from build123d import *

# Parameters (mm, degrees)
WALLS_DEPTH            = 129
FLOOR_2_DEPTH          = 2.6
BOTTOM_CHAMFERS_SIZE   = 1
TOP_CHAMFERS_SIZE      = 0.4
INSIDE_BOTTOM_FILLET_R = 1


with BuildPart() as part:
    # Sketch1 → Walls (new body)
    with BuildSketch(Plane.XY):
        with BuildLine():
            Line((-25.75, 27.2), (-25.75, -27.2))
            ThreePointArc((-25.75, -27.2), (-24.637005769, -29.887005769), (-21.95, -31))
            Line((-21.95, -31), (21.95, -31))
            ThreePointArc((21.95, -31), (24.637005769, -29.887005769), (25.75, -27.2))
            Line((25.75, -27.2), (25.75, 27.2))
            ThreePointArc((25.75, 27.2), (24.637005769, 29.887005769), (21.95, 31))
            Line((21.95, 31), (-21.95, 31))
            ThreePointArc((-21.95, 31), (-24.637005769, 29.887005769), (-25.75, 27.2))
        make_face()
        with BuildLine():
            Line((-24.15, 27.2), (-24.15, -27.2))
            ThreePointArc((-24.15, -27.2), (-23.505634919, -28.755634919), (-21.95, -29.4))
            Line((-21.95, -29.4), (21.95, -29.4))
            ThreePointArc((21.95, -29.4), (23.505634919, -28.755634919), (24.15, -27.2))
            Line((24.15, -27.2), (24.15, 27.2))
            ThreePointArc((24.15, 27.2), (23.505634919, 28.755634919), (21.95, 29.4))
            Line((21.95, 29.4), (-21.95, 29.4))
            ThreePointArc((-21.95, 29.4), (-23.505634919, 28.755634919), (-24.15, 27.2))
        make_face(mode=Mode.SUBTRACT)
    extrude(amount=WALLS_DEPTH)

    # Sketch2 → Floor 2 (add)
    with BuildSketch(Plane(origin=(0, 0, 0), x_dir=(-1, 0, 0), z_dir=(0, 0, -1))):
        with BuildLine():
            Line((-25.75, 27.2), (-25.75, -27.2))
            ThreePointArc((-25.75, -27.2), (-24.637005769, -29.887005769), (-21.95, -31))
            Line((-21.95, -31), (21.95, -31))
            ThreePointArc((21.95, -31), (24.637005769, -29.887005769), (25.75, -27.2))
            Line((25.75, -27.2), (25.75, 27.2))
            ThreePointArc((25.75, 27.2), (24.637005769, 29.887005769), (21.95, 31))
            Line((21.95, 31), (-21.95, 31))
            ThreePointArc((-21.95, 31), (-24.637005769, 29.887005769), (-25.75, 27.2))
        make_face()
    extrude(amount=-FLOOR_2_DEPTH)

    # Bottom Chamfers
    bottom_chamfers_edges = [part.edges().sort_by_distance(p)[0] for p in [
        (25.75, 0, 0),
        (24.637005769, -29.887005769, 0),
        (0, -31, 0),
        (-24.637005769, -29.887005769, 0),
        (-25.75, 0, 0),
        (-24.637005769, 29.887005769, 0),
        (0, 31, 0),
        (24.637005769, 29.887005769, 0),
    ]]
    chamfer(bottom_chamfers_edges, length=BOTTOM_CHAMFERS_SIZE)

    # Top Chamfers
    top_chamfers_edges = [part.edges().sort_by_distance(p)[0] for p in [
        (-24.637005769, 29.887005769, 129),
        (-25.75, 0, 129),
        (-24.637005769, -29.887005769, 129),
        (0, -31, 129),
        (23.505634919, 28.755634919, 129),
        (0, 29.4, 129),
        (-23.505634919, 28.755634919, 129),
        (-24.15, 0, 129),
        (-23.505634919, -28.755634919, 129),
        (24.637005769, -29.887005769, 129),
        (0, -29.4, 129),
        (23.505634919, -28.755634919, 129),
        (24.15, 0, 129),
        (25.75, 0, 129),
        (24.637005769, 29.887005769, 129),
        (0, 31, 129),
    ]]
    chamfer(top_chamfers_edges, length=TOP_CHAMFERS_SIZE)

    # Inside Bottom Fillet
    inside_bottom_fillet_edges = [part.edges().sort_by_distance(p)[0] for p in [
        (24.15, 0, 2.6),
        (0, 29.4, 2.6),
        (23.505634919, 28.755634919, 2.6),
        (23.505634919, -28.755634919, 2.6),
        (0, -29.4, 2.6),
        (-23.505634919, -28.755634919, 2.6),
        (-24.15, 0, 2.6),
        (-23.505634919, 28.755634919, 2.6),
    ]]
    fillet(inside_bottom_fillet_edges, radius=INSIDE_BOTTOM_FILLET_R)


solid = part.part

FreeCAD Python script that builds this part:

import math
import FreeCAD as App
import Part
import Sketcher

V = App.Vector
Q = App.Units.Quantity


def edges_at(feature, points):
    """Names of the edges that pass closest to the given points."""
    edges = feature.Shape.Edges
    near = lambda p: min(range(len(edges)), key=lambda i: edges[i].distToShape(Part.Vertex(*p))[0])
    return sorted({f"Edge{near(p) + 1}" for p in points})

doc = App.newDocument("Part")
params = doc.addObject("Spreadsheet::Sheet", "Params")
for row, (alias, value) in enumerate([
    ("sketch1_radius", "3.8 mm"),
    ("sketch1_radius2", "2.2 mm"),
    ("sketch1_width", "43.9 mm"),
    ("sketch1_height", "54.4 mm"),
    ("pad1_length", "129 mm"),
    ("sketch2_radius", "3.8 mm"),
    ("sketch2_width", "43.9 mm"),
    ("sketch2_height", "54.4 mm"),
    ("pad2_length", "2.6 mm"),
    ("chamfer_size", "1 mm"),
    ("chamfer2_size", "0.4 mm"),
    ("fillet_radius", "1 mm"),
], start=1):
    params.set(f"A{row}", alias)
    params.set(f"B{row}", "=" + value)
    params.setAlias(f"B{row}", alias)

body = doc.addObject("PartDesign::Body", "Body")

sketch1 = body.newObject("Sketcher::SketchObject", "Sketch")
sketch1.AttachmentSupport = (doc.getObject("XY_Plane"), [""])
sketch1.MapMode = "FlatFace"
sketch1.addGeometry(Part.LineSegment(V(-25.8, 27.2, 0), V(-25.8, -27.2, 0)), False)
sketch1.addGeometry(Part.ArcOfCircle(Part.Circle(V(-22, -27.2, 0), V(0, 0, 1), 3.8), math.radians(180), math.radians(270)), False)
sketch1.addGeometry(Part.LineSegment(V(-21.9, -31, 0), V(21.9, -31, 0)), False)
sketch1.addGeometry(Part.ArcOfCircle(Part.Circle(V(22, -27.2, 0), V(0, 0, 1), 3.8), math.radians(-90), math.radians(0)), False)
sketch1.addGeometry(Part.LineSegment(V(25.8, -27.2, 0), V(25.8, 27.2, 0)), False)
sketch1.addGeometry(Part.ArcOfCircle(Part.Circle(V(22, 27.2, 0), V(0, 0, 1), 3.8), math.radians(0), math.radians(90)), False)
sketch1.addGeometry(Part.LineSegment(V(21.9, 31, 0), V(-21.9, 31, 0)), False)
sketch1.addGeometry(Part.ArcOfCircle(Part.Circle(V(-22, 27.2, 0), V(0, 0, 1), 3.8), math.radians(90), math.radians(180)), False)
sketch1.addGeometry(Part.LineSegment(V(-24.1, -27.2, 0), V(-24.1, 27.2, 0)), False)
sketch1.addGeometry(Part.ArcOfCircle(Part.Circle(V(-22, 27.2, 0), V(0, 0, 1), 2.2), math.radians(90), math.radians(180)), False)
sketch1.addGeometry(Part.LineSegment(V(-21.9, 29.4, 0), V(21.9, 29.4, 0)), False)
sketch1.addGeometry(Part.ArcOfCircle(Part.Circle(V(22, 27.2, 0), V(0, 0, 1), 2.2), math.radians(0), math.radians(90)), False)
sketch1.addGeometry(Part.LineSegment(V(24.1, 27.2, 0), V(24.1, -27.2, 0)), False)
sketch1.addGeometry(Part.ArcOfCircle(Part.Circle(V(22, -27.2, 0), V(0, 0, 1), 2.2), math.radians(-90), math.radians(0)), False)
sketch1.addGeometry(Part.LineSegment(V(21.9, -29.4, 0), V(-21.9, -29.4, 0)), False)
sketch1.addGeometry(Part.ArcOfCircle(Part.Circle(V(-22, -27.2, 0), V(0, 0, 1), 2.2), math.radians(180), math.radians(270)), False)
sketch1.addConstraint(Sketcher.Constraint("Tangent", 0, 2, 1, 1))
sketch1.addConstraint(Sketcher.Constraint("Tangent", 1, 2, 2, 1))
sketch1.addConstraint(Sketcher.Constraint("Tangent", 2, 2, 3, 1))
sketch1.addConstraint(Sketcher.Constraint("Tangent", 3, 2, 4, 1))
sketch1.addConstraint(Sketcher.Constraint("Tangent", 4, 2, 5, 1))
sketch1.addConstraint(Sketcher.Constraint("Tangent", 5, 2, 6, 1))
sketch1.addConstraint(Sketcher.Constraint("Tangent", 6, 2, 7, 1))
sketch1.addConstraint(Sketcher.Constraint("Tangent", 7, 2, 0, 1))
sketch1.addConstraint(Sketcher.Constraint("Tangent", 8, 2, 9, 2))
sketch1.addConstraint(Sketcher.Constraint("Tangent", 9, 1, 10, 1))
sketch1.addConstraint(Sketcher.Constraint("Tangent", 10, 2, 11, 2))
sketch1.addConstraint(Sketcher.Constraint("Tangent", 11, 1, 12, 1))
sketch1.addConstraint(Sketcher.Constraint("Tangent", 12, 2, 13, 2))
sketch1.addConstraint(Sketcher.Constraint("Tangent", 13, 1, 14, 1))
sketch1.addConstraint(Sketcher.Constraint("Tangent", 14, 2, 15, 2))
sketch1.addConstraint(Sketcher.Constraint("Tangent", 15, 1, 8, 1))
sketch1.addConstraint(Sketcher.Constraint("Vertical", 0))
sketch1.addConstraint(Sketcher.Constraint("Horizontal", 2))
sketch1.addConstraint(Sketcher.Constraint("Vertical", 4))
sketch1.addConstraint(Sketcher.Constraint("Horizontal", 6))
sketch1.addConstraint(Sketcher.Constraint("Vertical", 8))
sketch1.addConstraint(Sketcher.Constraint("Horizontal", 10))
sketch1.addConstraint(Sketcher.Constraint("Vertical", 12))
sketch1.addConstraint(Sketcher.Constraint("Horizontal", 14))
sketch1.addConstraint(Sketcher.Constraint("Coincident", 9, 3, 7, 3))
sketch1.addConstraint(Sketcher.Constraint("Coincident", 11, 3, 5, 3))
sketch1.addConstraint(Sketcher.Constraint("Coincident", 13, 3, 3, 3))
sketch1.addConstraint(Sketcher.Constraint("Equal", 1, 3))
sketch1.addConstraint(Sketcher.Constraint("Equal", 3, 5))
sketch1.addConstraint(Sketcher.Constraint("Equal", 5, 7))
sketch1.addConstraint(Sketcher.Constraint("Equal", 13, 15))
sketch1.addConstraint(Sketcher.Constraint("Symmetric", 1, 3, 5, 3, -1, 1))
sketch1.addConstraint(Sketcher.Constraint("Radius", 1, Q("3.8 mm")))
sketch1.addConstraint(Sketcher.Constraint("Radius", 9, Q("2.2 mm")))
sketch1.addConstraint(Sketcher.Constraint("DistanceX", 2, 1, 2, 2, Q("43.9 mm")))
sketch1.addConstraint(Sketcher.Constraint("DistanceY", 0, 2, 0, 1, Q("54.4 mm")))
sketch1.setExpression("Constraints[32]", "Params.sketch1_radius")
sketch1.setExpression("Constraints[33]", "Params.sketch1_radius2")
sketch1.setExpression("Constraints[34]", "Params.sketch1_width")
sketch1.setExpression("Constraints[35]", "Params.sketch1_height")
pad1 = body.newObject("PartDesign::Pad", "Pad")
pad1.Profile = sketch1
pad1.setExpression("Length", "Params.pad1_length")

sketch2 = body.newObject("Sketcher::SketchObject", "Sketch001")
sketch2.AttachmentSupport = (doc.getObject("XY_Plane"), [""])
sketch2.MapMode = "FlatFace"
sketch2.addGeometry(Part.LineSegment(V(25.8, 27.2, 0), V(25.8, -27.2, 0)), False)
sketch2.addGeometry(Part.ArcOfCircle(Part.Circle(V(22, -27.2, 0), V(0, 0, 1), 3.8), math.radians(-90), math.radians(0)), False)
sketch2.addGeometry(Part.LineSegment(V(21.9, -31, 0), V(-21.9, -31, 0)), False)
sketch2.addGeometry(Part.ArcOfCircle(Part.Circle(V(-22, -27.2, 0), V(0, 0, 1), 3.8), math.radians(180), math.radians(270)), False)
sketch2.addGeometry(Part.LineSegment(V(-25.8, -27.2, 0), V(-25.8, 27.2, 0)), False)
sketch2.addGeometry(Part.ArcOfCircle(Part.Circle(V(-22, 27.2, 0), V(0, 0, 1), 3.8), math.radians(90), math.radians(180)), False)
sketch2.addGeometry(Part.LineSegment(V(-21.9, 31, 0), V(21.9, 31, 0)), False)
sketch2.addGeometry(Part.ArcOfCircle(Part.Circle(V(22, 27.2, 0), V(0, 0, 1), 3.8), math.radians(0), math.radians(90)), False)
sketch2.addConstraint(Sketcher.Constraint("Tangent", 0, 2, 1, 2))
sketch2.addConstraint(Sketcher.Constraint("Tangent", 1, 1, 2, 1))
sketch2.addConstraint(Sketcher.Constraint("Tangent", 2, 2, 3, 2))
sketch2.addConstraint(Sketcher.Constraint("Tangent", 3, 1, 4, 1))
sketch2.addConstraint(Sketcher.Constraint("Tangent", 4, 2, 5, 2))
sketch2.addConstraint(Sketcher.Constraint("Tangent", 5, 1, 6, 1))
sketch2.addConstraint(Sketcher.Constraint("Tangent", 6, 2, 7, 2))
sketch2.addConstraint(Sketcher.Constraint("Tangent", 7, 1, 0, 1))
sketch2.addConstraint(Sketcher.Constraint("Vertical", 0))
sketch2.addConstraint(Sketcher.Constraint("Horizontal", 2))
sketch2.addConstraint(Sketcher.Constraint("Vertical", 4))
sketch2.addConstraint(Sketcher.Constraint("Horizontal", 6))
sketch2.addConstraint(Sketcher.Constraint("Equal", 1, 3))
sketch2.addConstraint(Sketcher.Constraint("Equal", 3, 5))
sketch2.addConstraint(Sketcher.Constraint("Equal", 5, 7))
sketch2.addConstraint(Sketcher.Constraint("Symmetric", 1, 3, 5, 3, -1, 1))
sketch2.addConstraint(Sketcher.Constraint("Radius", 1, Q("3.8 mm")))
sketch2.addConstraint(Sketcher.Constraint("DistanceX", 2, 2, 2, 1, Q("43.9 mm")))
sketch2.addConstraint(Sketcher.Constraint("DistanceY", 0, 2, 0, 1, Q("54.4 mm")))
sketch2.setExpression("Constraints[16]", "Params.sketch2_radius")
sketch2.setExpression("Constraints[17]", "Params.sketch2_width")
sketch2.setExpression("Constraints[18]", "Params.sketch2_height")
pad2 = body.newObject("PartDesign::Pad", "Pad001")
pad2.Profile = sketch2
pad2.setExpression("Length", "Params.pad2_length")
doc.recompute()

chamfer = body.newObject("PartDesign::Chamfer", "Chamfer")
chamfer.Base = (pad2, edges_at(pad2, [
    (25.75, 0, 0),
    (24.637, -29.887, 0),
    (0, -31, 0),
    (-24.637, -29.887, 0),
    (-25.75, 0, 0),
    (-24.637, 29.887, 0),
    (0, 31, 0),
    (24.637, 29.887, 0),
]))
chamfer.setExpression("Size", "Params.chamfer_size")
doc.recompute()

chamfer2 = body.newObject("PartDesign::Chamfer", "Chamfer001")
chamfer2.Base = (chamfer, edges_at(chamfer, [
    (-24.637, 29.887, 129),
    (-25.75, 0, 129),
    (-24.637, -29.887, 129),
    (0, -31, 129),
    (23.506, 28.756, 129),
    (0, 29.4, 129),
    (-23.506, 28.756, 129),
    (-24.15, 0, 129),
    (-23.506, -28.756, 129),
    (24.637, -29.887, 129),
    (0, -29.4, 129),
    (23.506, -28.756, 129),
    (24.15, 0, 129),
    (25.75, 0, 129),
    (24.637, 29.887, 129),
    (0, 31, 129),
]))
chamfer2.setExpression("Size", "Params.chamfer2_size")
doc.recompute()

fillet = body.newObject("PartDesign::Fillet", "Fillet")
fillet.Base = (chamfer2, edges_at(chamfer2, [
    (24.15, 0, 2.6),
    (0, 29.4, 2.6),
    (23.506, 28.756, 2.6),
    (23.506, -28.756, 2.6),
    (0, -29.4, 2.6),
    (-23.506, -28.756, 2.6),
    (-24.15, 0, 2.6),
    (-23.506, 28.756, 2.6),
]))
fillet.setExpression("Radius", "Params.fillet_radius")

doc.recompute()
